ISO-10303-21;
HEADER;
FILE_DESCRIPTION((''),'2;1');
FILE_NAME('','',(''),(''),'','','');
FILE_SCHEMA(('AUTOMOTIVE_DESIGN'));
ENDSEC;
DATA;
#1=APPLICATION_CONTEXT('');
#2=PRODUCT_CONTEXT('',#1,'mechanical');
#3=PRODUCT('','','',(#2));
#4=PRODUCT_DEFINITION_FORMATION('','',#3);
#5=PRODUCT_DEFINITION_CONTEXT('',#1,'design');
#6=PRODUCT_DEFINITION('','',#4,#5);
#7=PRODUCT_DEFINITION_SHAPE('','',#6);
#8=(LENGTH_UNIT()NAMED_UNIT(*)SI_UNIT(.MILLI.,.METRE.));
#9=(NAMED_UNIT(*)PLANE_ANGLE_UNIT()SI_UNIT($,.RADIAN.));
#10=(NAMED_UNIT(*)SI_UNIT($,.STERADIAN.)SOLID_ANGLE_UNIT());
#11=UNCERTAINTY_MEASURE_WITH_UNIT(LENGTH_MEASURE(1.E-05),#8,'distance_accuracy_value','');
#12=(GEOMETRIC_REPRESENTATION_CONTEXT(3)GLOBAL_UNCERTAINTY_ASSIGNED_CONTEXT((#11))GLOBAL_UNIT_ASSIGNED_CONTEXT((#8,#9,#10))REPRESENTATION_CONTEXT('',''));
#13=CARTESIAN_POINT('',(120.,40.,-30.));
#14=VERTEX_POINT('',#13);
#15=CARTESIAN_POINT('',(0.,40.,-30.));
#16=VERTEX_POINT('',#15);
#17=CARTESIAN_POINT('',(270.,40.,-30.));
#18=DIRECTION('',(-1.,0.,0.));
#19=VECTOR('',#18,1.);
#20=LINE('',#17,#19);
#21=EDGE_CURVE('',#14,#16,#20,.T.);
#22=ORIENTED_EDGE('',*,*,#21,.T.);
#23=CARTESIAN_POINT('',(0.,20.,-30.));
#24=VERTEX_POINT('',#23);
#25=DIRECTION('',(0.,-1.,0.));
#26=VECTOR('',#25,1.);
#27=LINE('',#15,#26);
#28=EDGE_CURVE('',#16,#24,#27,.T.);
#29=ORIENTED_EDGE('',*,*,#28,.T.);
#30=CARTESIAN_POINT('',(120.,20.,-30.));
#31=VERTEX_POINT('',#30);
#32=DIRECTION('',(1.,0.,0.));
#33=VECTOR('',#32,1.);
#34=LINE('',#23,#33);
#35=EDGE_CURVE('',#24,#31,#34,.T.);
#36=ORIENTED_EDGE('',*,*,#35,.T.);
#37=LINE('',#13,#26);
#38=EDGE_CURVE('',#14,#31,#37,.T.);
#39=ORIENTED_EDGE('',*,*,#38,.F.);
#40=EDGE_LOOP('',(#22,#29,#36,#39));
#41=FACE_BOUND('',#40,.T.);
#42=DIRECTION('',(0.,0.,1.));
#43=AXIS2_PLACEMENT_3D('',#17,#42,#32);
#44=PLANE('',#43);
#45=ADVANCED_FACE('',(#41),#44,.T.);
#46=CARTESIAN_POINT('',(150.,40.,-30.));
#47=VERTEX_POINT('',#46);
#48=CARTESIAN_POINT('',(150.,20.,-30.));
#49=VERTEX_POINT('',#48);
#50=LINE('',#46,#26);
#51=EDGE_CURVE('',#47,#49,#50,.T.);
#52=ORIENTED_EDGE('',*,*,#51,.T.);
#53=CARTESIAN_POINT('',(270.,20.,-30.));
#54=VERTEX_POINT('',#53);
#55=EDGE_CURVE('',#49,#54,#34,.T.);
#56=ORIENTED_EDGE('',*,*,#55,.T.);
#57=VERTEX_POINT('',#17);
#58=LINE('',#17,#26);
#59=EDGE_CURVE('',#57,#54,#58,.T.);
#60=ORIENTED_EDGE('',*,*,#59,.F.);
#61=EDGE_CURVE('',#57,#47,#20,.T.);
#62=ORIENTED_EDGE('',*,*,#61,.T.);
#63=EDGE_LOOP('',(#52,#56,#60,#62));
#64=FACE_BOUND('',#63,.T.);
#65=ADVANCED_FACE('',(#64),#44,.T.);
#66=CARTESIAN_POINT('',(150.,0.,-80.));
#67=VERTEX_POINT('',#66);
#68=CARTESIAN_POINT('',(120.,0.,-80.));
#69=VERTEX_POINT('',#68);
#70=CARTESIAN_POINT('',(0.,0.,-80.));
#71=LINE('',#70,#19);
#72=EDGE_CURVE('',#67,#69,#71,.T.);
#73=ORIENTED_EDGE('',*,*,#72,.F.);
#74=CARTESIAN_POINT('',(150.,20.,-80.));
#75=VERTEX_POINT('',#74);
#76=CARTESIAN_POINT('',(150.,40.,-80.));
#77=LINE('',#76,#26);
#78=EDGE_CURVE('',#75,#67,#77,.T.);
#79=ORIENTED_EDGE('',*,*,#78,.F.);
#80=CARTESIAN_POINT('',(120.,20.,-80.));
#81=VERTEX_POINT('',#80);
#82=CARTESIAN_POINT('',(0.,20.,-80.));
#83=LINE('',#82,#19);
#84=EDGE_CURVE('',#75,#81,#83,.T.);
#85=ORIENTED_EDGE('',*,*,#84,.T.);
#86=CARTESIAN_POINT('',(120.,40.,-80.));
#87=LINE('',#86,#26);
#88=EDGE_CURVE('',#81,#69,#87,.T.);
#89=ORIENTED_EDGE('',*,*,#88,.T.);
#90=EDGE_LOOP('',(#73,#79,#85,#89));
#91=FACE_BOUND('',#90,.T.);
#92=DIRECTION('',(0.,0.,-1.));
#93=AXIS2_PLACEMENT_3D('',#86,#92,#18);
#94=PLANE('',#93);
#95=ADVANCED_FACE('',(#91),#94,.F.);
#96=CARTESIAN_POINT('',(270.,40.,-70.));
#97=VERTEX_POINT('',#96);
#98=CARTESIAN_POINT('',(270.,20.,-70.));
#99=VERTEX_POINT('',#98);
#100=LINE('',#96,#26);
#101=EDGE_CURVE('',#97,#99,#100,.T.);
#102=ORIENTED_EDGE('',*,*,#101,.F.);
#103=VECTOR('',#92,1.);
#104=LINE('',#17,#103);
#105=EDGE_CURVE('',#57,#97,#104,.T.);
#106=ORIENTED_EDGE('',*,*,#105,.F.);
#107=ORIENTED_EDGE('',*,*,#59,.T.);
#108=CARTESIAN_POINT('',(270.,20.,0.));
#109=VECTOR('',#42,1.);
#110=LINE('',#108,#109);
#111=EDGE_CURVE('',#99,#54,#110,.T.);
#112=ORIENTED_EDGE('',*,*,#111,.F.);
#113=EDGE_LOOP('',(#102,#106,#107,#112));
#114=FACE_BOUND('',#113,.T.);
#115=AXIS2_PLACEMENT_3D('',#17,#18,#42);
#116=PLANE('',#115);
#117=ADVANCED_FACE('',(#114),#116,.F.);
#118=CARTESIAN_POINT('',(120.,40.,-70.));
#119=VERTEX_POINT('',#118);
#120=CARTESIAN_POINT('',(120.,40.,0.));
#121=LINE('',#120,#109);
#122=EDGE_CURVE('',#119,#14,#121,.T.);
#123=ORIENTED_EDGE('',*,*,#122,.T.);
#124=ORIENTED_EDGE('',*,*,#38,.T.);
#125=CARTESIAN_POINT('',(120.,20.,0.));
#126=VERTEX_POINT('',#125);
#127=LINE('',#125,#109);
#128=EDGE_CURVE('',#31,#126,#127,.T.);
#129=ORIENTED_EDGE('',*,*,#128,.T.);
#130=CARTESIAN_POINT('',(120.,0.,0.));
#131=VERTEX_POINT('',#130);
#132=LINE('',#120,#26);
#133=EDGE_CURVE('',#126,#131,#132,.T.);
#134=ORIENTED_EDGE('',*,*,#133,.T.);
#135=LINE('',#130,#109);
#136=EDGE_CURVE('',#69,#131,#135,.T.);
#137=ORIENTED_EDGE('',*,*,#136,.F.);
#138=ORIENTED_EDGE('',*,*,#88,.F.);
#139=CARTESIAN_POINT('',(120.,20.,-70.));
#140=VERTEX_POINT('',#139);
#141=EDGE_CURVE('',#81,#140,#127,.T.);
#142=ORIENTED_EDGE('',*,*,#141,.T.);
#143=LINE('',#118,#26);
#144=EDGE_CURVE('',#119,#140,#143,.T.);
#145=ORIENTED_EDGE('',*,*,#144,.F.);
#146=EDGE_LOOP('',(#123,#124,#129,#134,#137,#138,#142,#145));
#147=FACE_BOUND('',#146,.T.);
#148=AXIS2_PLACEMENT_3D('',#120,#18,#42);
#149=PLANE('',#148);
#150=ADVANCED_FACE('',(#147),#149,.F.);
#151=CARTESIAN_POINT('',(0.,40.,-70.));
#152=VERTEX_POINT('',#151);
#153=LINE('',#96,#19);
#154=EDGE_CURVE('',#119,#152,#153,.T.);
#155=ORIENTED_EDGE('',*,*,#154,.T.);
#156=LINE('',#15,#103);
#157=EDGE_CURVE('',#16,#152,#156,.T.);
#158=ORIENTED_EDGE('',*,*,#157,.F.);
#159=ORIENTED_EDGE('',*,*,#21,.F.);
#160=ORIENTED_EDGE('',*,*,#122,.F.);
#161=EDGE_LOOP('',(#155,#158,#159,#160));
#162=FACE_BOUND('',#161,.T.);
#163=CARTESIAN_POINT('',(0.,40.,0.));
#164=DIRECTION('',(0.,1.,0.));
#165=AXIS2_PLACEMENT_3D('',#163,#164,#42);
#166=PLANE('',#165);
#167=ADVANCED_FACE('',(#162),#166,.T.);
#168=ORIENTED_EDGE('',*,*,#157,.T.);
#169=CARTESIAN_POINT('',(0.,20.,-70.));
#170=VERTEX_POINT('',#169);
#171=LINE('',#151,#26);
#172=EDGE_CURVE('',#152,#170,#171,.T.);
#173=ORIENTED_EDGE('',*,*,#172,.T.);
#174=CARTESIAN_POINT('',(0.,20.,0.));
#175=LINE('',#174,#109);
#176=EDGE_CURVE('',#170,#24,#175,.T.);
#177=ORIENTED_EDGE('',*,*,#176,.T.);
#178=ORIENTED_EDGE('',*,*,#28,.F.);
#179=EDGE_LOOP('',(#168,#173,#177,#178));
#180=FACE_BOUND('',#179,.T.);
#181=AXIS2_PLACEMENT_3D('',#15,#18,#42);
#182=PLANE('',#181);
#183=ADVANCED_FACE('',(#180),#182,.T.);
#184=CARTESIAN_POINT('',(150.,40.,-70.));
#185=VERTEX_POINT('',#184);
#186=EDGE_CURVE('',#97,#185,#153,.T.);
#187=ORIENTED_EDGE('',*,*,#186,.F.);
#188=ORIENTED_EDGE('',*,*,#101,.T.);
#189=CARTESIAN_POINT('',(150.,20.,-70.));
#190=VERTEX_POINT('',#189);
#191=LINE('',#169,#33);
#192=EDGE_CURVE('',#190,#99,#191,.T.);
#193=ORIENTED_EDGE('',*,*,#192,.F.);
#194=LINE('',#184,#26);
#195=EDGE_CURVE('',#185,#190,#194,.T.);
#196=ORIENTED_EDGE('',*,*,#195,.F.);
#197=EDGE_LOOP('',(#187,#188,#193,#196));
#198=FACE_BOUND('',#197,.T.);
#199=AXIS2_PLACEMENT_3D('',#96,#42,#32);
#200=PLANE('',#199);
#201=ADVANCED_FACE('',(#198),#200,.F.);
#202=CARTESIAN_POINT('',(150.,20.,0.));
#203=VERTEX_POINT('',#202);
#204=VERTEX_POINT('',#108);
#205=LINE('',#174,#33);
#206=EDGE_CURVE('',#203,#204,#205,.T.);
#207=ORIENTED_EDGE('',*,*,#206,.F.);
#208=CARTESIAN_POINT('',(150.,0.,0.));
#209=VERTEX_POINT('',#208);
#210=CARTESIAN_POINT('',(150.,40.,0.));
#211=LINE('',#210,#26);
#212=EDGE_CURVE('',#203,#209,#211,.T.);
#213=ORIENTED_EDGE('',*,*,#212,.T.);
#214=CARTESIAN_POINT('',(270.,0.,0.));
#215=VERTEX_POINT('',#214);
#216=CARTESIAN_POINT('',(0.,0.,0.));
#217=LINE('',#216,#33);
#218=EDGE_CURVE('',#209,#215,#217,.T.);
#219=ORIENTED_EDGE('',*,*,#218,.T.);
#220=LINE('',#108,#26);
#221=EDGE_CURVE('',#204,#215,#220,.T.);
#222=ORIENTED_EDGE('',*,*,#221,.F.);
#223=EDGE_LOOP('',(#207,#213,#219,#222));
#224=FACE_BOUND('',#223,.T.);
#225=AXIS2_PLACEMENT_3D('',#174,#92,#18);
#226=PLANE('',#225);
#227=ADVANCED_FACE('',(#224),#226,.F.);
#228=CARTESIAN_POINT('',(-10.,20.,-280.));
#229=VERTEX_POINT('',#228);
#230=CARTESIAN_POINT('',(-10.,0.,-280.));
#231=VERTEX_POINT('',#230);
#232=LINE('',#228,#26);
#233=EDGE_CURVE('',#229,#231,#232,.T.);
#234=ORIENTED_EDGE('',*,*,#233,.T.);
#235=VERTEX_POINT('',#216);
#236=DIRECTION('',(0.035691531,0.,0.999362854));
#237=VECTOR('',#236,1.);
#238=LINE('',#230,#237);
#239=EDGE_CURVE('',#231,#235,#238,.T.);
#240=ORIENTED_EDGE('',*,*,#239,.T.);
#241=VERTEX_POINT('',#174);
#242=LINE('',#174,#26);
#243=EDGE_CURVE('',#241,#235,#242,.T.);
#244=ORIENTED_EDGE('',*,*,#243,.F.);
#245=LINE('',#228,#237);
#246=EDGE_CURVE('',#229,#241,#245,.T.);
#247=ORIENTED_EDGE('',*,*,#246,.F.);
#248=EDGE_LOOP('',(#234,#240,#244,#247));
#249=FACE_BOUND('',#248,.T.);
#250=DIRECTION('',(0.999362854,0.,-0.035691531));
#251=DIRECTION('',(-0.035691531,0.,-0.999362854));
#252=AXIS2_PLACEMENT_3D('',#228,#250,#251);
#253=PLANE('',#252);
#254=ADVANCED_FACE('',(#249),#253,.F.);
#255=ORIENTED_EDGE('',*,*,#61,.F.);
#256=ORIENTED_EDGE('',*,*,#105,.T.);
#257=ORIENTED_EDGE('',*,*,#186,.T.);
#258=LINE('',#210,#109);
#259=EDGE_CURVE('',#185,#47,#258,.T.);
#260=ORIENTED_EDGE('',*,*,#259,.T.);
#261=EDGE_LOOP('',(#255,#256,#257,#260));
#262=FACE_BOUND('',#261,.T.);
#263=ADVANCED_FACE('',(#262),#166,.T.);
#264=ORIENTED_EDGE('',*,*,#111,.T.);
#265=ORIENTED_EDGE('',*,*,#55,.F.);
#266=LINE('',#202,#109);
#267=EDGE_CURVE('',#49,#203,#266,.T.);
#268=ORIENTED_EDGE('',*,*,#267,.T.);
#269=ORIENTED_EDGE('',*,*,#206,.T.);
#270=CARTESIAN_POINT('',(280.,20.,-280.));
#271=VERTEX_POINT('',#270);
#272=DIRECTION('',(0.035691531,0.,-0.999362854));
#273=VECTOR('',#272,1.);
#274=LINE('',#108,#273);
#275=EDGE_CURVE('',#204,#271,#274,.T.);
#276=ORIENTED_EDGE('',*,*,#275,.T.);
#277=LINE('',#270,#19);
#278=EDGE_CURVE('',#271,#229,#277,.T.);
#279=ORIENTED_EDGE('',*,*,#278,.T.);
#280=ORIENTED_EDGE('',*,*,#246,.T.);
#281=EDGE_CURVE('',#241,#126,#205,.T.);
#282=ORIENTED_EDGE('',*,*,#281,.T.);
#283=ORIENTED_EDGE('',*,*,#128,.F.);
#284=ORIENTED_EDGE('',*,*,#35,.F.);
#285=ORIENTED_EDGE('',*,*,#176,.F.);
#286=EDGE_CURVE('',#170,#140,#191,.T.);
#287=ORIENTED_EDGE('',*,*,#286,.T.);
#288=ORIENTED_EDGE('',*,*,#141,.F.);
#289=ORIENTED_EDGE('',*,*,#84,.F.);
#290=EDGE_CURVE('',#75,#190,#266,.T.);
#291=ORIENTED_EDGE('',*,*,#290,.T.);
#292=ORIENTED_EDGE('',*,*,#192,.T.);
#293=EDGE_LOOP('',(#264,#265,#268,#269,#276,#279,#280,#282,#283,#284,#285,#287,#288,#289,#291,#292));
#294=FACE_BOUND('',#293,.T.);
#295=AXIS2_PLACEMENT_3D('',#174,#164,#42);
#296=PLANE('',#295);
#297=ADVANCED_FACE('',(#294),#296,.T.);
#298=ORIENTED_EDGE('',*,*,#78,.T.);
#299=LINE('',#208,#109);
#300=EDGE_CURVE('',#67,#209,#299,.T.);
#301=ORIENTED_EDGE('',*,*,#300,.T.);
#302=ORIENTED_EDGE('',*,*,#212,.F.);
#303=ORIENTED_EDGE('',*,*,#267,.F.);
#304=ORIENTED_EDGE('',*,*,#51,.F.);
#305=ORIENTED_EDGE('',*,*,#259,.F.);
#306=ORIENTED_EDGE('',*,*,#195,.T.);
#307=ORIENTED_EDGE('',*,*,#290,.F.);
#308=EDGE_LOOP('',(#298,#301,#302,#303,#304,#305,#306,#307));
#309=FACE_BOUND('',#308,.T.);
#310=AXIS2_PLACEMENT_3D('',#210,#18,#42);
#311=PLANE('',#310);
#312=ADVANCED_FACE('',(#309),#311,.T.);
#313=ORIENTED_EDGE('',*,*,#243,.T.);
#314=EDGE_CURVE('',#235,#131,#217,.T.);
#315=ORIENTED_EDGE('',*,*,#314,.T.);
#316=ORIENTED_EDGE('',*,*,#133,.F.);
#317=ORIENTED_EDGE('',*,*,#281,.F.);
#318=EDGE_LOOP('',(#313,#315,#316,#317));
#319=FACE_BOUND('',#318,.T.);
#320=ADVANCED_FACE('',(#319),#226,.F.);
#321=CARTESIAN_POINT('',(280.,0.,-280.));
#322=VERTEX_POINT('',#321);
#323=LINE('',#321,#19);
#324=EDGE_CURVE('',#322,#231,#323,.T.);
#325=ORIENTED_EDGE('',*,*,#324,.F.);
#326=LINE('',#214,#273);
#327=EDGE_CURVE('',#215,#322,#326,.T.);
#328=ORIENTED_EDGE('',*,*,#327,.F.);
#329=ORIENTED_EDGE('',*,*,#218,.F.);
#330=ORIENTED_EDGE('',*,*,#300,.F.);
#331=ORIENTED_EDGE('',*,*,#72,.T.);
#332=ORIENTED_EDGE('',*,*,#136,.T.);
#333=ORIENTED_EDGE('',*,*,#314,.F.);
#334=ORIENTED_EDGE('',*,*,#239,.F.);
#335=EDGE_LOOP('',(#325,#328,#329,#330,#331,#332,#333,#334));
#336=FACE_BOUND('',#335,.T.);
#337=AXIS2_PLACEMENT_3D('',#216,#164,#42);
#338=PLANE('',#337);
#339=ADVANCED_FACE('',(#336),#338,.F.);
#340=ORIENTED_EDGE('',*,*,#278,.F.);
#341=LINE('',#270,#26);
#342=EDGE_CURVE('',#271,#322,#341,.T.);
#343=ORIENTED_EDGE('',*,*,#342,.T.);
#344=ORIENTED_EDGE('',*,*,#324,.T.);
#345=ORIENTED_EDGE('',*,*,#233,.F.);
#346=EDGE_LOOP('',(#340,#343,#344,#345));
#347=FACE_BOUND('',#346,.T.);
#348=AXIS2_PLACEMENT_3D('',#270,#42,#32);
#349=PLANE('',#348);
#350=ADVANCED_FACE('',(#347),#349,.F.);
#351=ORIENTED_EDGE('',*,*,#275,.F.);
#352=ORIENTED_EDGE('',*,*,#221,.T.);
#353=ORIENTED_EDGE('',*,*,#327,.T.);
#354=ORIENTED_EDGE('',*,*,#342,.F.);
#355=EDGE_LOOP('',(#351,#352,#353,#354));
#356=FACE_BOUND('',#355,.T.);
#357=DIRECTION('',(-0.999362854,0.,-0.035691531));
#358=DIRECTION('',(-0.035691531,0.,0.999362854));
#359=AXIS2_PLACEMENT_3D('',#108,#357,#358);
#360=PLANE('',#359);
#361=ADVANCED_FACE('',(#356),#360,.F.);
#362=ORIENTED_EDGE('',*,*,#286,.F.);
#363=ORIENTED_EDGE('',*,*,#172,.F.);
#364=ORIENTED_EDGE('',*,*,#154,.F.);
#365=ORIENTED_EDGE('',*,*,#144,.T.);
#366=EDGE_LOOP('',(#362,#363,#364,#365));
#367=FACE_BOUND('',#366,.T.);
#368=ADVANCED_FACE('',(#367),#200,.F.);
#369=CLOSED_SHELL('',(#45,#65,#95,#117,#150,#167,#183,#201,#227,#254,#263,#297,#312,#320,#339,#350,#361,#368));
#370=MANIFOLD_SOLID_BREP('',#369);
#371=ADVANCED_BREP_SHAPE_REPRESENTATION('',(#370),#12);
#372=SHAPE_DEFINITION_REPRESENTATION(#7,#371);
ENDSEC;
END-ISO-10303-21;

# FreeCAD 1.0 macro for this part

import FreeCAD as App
import Part
import Sketcher

V = App.Vector
Q = App.Units.Quantity

doc = App.newDocument("Part")
body = doc.addObject("PartDesign::Body", "Body")

# Sketch on XZ plane
sketch1 = body.newObject("Sketcher::SketchObject", "Sketch")
sketch1.AttachmentSupport = (doc.getObject("XZ_Plane"), [""])
sketch1.MapMode = "FlatFace"
sketch1.addGeometry(Part.LineSegment(V(0, 0, 0), V(270, 0, 0)), False)
sketch1.addGeometry(Part.LineSegment(V(270, 0, 0), V(280, -280, 0)), False)
sketch1.addGeometry(Part.LineSegment(V(280, -280, 0), V(-10, -280, 0)), False)
sketch1.addGeometry(Part.LineSegment(V(-10, -280, 0), V(0, 0, 0)), False)
sketch1.addConstraint(Sketcher.Constraint("Coincident", 0, 2, 1, 1))
sketch1.addConstraint(Sketcher.Constraint("Coincident", 1, 2, 2, 1))
sketch1.addConstraint(Sketcher.Constraint("Coincident", 2, 2, 3, 1))
sketch1.addConstraint(Sketcher.Constraint("Coincident", 3, 2, 0, 1))
sketch1.addConstraint(Sketcher.Constraint("Horizontal", 0))
sketch1.addConstraint(Sketcher.Constraint("Horizontal", 2))
sketch1.addConstraint(Sketcher.Constraint("Coincident", 3, 2, -1, 1))
sketch1.addConstraint(Sketcher.Constraint("Equal", 1, 3))
sketch1.addConstraint(Sketcher.Constraint("DistanceX", 0, 1, 0, 2, Q("270 mm")))
sketch1.addConstraint(Sketcher.Constraint("DistanceX", 2, 2, 2, 1, Q("290 mm")))
sketch1.addConstraint(Sketcher.Constraint("DistanceY", 1, 2, -1, 1, Q("280 mm")))
pad1 = body.newObject("PartDesign::Pad", "Pad")
pad1.Profile = sketch1
pad1.Length = 20
pad1.Reversed = True

# Sketch on XZ plane
sketch2 = body.newObject("Sketcher::SketchObject", "Sketch001")
sketch2.AttachmentSupport = (doc.getObject("XZ_Plane"), [""])
sketch2.MapMode = "FlatFace"
sketch2.addGeometry(Part.LineSegment(V(0, -70, 0), V(0, -30, 0)), False)
sketch2.addGeometry(Part.LineSegment(V(0, -30, 0), V(270, -30, 0)), False)
sketch2.addGeometry(Part.LineSegment(V(270, -30, 0), V(270, -70, 0)), False)
sketch2.addGeometry(Part.LineSegment(V(270, -70, 0), V(0, -70, 0)), False)
sketch2.addConstraint(Sketcher.Constraint("Coincident", 0, 2, 1, 1))
sketch2.addConstraint(Sketcher.Constraint("Coincident", 1, 2, 2, 1))
sketch2.addConstraint(Sketcher.Constraint("Coincident", 2, 2, 3, 1))
sketch2.addConstraint(Sketcher.Constraint("Coincident", 3, 2, 0, 1))
sketch2.addConstraint(Sketcher.Constraint("Vertical", 0))
sketch2.addConstraint(Sketcher.Constraint("Horizontal", 1))
sketch2.addConstraint(Sketcher.Constraint("Vertical", 2))
sketch2.addConstraint(Sketcher.Constraint("Horizontal", 3))
sketch2.addConstraint(Sketcher.Constraint("PointOnObject", 0, 2, -2))
sketch2.addConstraint(Sketcher.Constraint("DistanceX", 1, 1, 1, 2, Q("270 mm")))
sketch2.addConstraint(Sketcher.Constraint("DistanceY", 0, 1, 0, 2, Q("40 mm")))
sketch2.addConstraint(Sketcher.Constraint("DistanceY", 0, 2, -1, 1, Q("30 mm")))
pad2 = body.newObject("PartDesign::Pad", "Pad001")
pad2.Profile = sketch2
pad2.Length = 40
pad2.Reversed = True

# Sketch on XZ plane
sketch3 = body.newObject("Sketcher::SketchObject", "Sketch002")
sketch3.AttachmentSupport = (doc.getObject("XZ_Plane"), [""])
sketch3.MapMode = "FlatFace"
sketch3.addGeometry(Part.LineSegment(V(120, -80, 0), V(120, 0, 0)), False)
sketch3.addGeometry(Part.LineSegment(V(120, 0, 0), V(150, 0, 0)), False)
sketch3.addGeometry(Part.LineSegment(V(150, 0, 0), V(150, -80, 0)), False)
sketch3.addGeometry(Part.LineSegment(V(150, -80, 0), V(120, -80, 0)), False)
sketch3.addConstraint(Sketcher.Constraint("Coincident", 0, 2, 1, 1))
sketch3.addConstraint(Sketcher.Constraint("Coincident", 1, 2, 2, 1))
sketch3.addConstraint(Sketcher.Constraint("Coincident", 2, 2, 3, 1))
sketch3.addConstraint(Sketcher.Constraint("Coincident", 3, 2, 0, 1))
sketch3.addConstraint(Sketcher.Constraint("Vertical", 0))
sketch3.addConstraint(Sketcher.Constraint("Horizontal", 1))
sketch3.addConstraint(Sketcher.Constraint("Vertical", 2))
sketch3.addConstraint(Sketcher.Constraint("Horizontal", 3))
sketch3.addConstraint(Sketcher.Constraint("PointOnObject", 0, 2, -1))
sketch3.addConstraint(Sketcher.Constraint("DistanceX", 1, 1, 1, 2, Q("30 mm")))
sketch3.addConstraint(Sketcher.Constraint("DistanceY", 0, 1, 0, 2, Q("80 mm")))
sketch3.addConstraint(Sketcher.Constraint("DistanceX", -1, 1, 0, 2, Q("120 mm")))
pocket1 = body.newObject("PartDesign::Pocket", "Pocket")
pocket1.Profile = sketch3
pocket1.Type = "ThroughAll"
pocket1.Midplane = True

doc.recompute()
